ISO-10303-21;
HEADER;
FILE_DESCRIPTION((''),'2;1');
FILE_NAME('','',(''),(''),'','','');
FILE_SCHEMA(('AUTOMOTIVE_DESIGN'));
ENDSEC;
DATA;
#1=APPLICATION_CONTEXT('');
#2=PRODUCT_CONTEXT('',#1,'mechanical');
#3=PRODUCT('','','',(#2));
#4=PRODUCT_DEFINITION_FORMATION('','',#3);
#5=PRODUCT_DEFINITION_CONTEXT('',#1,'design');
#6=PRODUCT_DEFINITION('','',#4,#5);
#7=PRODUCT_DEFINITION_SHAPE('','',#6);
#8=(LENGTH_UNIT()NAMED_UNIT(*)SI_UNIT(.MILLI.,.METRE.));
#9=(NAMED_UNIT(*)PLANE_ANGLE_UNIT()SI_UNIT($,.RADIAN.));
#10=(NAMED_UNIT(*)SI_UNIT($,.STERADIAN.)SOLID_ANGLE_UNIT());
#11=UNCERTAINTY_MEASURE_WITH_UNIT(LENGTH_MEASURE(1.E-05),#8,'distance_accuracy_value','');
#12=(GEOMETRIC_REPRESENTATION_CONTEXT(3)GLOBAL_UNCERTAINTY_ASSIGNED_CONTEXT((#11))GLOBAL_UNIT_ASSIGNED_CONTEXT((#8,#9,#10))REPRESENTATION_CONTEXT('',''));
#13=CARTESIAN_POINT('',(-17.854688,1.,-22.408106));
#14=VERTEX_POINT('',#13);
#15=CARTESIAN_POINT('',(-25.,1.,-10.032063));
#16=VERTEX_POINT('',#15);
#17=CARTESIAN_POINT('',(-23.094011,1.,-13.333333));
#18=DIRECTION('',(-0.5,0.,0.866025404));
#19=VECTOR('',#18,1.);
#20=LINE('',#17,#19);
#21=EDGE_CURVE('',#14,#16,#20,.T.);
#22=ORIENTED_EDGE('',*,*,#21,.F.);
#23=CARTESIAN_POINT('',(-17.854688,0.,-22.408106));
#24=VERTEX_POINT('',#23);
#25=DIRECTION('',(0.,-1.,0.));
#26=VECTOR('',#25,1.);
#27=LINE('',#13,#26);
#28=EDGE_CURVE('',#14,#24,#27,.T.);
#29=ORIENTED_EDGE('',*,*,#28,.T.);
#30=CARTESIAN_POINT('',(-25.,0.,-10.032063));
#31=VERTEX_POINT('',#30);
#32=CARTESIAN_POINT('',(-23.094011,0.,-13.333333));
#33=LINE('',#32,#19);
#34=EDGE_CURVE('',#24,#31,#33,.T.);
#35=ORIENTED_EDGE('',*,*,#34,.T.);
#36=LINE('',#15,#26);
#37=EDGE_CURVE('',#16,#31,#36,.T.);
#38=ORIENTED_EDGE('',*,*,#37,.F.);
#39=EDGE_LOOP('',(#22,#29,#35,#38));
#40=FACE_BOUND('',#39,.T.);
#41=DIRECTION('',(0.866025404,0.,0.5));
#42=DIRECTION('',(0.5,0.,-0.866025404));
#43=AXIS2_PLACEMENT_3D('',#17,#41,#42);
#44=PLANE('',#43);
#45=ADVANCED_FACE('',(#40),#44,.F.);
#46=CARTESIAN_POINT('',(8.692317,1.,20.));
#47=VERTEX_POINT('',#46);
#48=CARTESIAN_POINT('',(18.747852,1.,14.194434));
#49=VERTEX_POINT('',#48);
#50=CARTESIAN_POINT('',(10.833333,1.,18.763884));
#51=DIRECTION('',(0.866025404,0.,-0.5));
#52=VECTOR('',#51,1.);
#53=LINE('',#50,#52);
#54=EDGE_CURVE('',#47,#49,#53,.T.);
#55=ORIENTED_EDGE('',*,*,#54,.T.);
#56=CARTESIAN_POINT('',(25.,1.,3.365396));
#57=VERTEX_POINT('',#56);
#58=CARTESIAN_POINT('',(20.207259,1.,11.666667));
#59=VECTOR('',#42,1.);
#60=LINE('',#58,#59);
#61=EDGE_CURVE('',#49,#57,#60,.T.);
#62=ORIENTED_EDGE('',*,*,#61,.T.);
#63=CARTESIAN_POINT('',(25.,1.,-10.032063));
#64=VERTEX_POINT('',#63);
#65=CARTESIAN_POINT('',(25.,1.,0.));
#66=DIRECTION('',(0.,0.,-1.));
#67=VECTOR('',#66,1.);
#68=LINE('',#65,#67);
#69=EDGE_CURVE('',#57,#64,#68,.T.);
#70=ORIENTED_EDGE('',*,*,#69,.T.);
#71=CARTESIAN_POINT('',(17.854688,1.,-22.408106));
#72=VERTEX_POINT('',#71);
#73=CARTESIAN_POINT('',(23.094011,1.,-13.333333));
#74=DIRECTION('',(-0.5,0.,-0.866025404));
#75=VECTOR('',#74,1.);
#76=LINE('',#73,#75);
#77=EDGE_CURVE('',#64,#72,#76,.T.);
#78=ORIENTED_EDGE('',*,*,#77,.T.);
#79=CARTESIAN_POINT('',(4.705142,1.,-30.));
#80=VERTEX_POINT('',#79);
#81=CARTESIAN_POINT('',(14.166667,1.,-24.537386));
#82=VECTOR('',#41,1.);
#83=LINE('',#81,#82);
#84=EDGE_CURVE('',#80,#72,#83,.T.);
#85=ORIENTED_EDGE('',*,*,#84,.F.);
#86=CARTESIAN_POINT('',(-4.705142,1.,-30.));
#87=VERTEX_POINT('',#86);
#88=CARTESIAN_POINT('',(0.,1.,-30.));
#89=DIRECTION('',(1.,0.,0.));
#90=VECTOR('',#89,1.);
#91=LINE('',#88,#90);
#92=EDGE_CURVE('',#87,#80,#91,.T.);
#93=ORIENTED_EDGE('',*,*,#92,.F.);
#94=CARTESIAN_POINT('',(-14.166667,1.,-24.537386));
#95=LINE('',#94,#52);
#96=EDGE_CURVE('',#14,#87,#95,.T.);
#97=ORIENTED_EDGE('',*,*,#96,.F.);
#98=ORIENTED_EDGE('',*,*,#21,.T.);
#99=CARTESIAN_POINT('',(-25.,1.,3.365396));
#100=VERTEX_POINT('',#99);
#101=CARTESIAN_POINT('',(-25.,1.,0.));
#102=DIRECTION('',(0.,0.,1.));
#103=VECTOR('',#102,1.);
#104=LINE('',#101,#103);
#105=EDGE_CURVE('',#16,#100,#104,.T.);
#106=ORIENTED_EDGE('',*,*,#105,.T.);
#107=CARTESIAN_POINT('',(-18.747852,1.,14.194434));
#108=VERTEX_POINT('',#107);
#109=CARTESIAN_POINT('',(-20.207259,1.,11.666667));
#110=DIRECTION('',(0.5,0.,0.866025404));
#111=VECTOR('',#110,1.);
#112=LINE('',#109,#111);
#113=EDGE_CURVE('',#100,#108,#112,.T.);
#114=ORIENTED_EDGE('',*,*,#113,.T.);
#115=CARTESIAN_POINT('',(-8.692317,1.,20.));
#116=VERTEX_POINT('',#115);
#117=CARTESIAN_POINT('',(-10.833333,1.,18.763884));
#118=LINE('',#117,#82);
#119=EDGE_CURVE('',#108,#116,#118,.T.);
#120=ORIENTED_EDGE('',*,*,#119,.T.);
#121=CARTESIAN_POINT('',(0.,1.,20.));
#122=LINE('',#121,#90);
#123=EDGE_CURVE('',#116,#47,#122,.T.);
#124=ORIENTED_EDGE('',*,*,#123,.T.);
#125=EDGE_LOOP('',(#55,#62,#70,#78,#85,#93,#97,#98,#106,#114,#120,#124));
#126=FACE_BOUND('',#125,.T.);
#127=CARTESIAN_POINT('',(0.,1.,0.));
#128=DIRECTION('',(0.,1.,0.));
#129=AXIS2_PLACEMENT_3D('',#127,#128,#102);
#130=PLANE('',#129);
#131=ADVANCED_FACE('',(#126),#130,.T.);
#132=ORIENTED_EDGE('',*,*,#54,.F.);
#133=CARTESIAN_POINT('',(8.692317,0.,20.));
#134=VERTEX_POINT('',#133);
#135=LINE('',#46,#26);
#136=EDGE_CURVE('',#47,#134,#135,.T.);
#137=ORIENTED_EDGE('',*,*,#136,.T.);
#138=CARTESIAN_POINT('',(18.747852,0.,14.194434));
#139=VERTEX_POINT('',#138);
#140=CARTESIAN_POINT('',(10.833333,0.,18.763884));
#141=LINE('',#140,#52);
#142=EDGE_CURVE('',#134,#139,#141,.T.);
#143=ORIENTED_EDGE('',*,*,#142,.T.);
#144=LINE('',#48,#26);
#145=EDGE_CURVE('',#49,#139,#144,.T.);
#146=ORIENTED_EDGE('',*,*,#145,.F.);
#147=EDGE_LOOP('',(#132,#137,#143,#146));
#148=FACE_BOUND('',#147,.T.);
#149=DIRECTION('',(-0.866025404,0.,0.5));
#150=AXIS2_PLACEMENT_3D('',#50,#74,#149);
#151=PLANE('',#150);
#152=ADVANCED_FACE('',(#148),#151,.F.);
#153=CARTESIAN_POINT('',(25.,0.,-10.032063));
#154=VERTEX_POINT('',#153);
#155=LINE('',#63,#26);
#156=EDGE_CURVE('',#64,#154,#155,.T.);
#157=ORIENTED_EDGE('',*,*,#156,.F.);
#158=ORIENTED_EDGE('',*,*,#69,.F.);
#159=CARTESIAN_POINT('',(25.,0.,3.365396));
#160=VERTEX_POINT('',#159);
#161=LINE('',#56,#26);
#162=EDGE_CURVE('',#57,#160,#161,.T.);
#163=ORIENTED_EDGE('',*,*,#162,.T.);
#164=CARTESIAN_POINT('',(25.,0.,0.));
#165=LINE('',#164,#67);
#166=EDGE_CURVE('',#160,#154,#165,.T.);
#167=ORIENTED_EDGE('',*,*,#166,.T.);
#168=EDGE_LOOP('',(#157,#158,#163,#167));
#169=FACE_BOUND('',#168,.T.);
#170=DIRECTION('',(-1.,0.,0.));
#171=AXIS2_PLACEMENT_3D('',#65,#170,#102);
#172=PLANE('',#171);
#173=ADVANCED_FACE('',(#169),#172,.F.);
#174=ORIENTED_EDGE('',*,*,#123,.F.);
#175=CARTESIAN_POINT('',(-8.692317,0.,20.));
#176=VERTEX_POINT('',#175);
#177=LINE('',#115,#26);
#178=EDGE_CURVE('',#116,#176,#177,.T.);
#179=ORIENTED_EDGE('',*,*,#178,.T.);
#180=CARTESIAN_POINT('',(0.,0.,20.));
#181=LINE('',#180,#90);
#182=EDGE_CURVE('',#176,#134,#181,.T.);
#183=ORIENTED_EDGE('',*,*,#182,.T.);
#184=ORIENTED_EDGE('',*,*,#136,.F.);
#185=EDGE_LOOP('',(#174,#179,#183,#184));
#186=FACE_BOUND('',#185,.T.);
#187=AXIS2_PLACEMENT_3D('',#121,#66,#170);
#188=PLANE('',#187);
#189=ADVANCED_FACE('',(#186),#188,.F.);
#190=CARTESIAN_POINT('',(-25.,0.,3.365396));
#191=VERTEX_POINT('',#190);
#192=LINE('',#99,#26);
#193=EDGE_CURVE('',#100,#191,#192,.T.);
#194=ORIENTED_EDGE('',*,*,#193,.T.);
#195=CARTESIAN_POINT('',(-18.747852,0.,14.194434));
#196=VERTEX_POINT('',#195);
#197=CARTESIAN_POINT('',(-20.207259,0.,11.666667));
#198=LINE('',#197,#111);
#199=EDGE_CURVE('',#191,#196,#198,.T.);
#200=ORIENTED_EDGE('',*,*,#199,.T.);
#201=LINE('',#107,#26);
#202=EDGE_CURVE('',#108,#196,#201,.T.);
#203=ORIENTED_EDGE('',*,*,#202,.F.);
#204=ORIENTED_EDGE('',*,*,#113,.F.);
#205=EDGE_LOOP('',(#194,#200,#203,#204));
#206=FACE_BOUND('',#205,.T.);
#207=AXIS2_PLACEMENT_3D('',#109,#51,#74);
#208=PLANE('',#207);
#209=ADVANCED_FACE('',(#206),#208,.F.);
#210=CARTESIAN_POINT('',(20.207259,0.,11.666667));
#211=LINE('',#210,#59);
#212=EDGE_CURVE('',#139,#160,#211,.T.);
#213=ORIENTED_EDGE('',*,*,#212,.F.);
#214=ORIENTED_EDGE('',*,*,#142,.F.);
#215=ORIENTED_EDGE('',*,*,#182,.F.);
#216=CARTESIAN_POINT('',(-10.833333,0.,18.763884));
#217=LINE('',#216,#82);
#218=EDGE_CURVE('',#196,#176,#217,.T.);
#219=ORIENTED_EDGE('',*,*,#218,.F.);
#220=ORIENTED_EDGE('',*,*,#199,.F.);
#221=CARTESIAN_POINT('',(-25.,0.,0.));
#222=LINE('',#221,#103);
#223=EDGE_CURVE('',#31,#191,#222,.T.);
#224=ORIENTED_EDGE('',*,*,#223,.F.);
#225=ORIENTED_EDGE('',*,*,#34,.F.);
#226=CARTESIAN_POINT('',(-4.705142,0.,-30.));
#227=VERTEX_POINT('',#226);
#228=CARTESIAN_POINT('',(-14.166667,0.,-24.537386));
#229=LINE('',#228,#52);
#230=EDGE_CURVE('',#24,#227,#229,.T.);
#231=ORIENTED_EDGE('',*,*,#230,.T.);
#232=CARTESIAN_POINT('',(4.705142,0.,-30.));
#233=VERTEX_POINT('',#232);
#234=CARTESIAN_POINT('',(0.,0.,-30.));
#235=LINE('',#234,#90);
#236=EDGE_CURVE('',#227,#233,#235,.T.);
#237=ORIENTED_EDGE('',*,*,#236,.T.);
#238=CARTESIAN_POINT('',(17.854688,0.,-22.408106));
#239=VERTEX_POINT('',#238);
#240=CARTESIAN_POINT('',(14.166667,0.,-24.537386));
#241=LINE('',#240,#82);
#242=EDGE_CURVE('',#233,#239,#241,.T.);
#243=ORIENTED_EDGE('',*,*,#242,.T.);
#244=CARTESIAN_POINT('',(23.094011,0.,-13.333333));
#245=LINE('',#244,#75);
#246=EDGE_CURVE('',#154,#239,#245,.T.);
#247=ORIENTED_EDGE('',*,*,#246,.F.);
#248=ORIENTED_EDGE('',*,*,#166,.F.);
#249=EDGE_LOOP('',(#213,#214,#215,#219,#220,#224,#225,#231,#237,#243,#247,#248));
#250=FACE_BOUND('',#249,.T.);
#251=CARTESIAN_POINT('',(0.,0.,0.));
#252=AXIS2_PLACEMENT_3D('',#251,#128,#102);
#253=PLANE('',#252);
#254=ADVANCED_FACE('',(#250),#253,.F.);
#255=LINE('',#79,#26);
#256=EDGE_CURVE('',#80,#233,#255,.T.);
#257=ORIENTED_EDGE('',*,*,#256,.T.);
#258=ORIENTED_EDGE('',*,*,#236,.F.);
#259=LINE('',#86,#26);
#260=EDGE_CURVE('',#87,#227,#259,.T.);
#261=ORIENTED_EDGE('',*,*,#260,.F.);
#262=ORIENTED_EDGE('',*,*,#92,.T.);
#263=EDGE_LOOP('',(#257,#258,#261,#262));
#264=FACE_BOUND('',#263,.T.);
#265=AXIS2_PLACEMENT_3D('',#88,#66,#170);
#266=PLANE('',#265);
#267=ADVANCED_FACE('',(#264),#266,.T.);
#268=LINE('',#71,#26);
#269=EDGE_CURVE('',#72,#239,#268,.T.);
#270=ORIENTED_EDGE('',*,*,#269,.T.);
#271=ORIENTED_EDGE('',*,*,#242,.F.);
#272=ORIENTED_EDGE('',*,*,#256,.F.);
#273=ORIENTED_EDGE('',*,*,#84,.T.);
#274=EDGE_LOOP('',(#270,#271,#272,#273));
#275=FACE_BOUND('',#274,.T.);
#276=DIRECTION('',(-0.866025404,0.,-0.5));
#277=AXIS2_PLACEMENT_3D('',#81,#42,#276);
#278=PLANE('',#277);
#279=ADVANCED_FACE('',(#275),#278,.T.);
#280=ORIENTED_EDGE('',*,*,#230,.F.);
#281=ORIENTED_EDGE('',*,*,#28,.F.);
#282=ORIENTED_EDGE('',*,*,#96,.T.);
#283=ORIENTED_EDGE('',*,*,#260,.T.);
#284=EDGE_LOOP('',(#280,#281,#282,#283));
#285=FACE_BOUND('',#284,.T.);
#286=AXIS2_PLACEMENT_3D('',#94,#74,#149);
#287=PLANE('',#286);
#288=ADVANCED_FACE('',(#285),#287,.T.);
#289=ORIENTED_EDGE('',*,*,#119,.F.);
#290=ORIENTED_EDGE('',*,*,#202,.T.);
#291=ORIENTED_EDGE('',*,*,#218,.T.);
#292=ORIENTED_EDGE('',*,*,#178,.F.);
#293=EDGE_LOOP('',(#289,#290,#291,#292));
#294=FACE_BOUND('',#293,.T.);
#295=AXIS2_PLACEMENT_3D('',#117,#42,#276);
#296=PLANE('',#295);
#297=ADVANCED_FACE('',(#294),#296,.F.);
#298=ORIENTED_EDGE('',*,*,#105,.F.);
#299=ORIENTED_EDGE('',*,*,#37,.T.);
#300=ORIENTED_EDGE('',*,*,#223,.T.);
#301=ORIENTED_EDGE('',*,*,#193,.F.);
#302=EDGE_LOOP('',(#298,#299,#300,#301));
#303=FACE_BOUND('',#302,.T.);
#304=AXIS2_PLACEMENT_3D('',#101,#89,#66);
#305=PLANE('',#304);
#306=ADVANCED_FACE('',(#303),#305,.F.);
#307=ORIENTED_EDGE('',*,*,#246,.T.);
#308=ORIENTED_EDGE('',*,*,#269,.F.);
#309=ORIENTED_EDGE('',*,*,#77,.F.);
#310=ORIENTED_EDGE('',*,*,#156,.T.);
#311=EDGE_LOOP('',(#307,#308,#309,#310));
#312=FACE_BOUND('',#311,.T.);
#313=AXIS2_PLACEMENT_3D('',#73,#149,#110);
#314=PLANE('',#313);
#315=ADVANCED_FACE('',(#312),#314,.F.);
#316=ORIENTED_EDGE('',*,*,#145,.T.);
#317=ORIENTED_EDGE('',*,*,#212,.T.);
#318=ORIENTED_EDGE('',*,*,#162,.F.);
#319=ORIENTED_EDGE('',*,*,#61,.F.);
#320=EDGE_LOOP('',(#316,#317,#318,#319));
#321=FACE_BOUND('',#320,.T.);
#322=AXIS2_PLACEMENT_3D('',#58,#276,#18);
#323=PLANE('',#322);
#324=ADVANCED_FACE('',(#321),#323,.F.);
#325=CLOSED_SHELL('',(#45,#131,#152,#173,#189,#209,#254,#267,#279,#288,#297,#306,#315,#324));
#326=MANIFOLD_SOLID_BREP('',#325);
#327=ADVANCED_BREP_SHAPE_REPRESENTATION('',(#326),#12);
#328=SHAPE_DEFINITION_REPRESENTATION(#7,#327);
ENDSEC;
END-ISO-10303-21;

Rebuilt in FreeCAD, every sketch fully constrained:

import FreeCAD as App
import Part
import Sketcher
from FreeCAD import Vector
Q = App.Units.Quantity


def add_polygon(sketch, points):
    """Adds a closed chain of lines whose ends are joined by coincident constraints."""
    first, n = sketch.GeometryCount, len(points)
    for a, b in zip(points, points[1:] + points[:1]):
        sketch.addGeometry(Part.LineSegment(App.Vector(*a, 0), App.Vector(*b, 0)), False)
    for i in range(n):
        sketch.addConstraint(Sketcher.Constraint("Coincident", first + i, 2, first + (i + 1) % n, 1))

doc = App.newDocument("Part")
body = doc.addObject("PartDesign::Body", "Body")

# Sketch on XZ plane
sketch1 = body.newObject("Sketcher::SketchObject", "Sketch")
sketch1.AttachmentSupport = (doc.getObject("XZ_Plane"), [""])
sketch1.MapMode = "FlatFace"
add_polygon(sketch1, [(5, -30), (-5, -30), (-18, -22), (-25, -10), (-25, 3), (-19, 14), (-9, 20), (9, 20), (19, 14), (25, 3), (25, -10), (18, -22)])  # lines 0-11
sketch1.addConstraint([
    Sketcher.Constraint("Horizontal", 0),
    Sketcher.Constraint("Vertical", 3),
    Sketcher.Constraint("Horizontal", 6),
    Sketcher.Constraint("Vertical", 9),
    Sketcher.Constraint("Symmetric", 4, 2, 7, 2, -2),
    Sketcher.Constraint("Symmetric", 3, 2, 8, 2, -2),
    Sketcher.Constraint("Symmetric", 1, 2, 10, 2, -2),
    Sketcher.Constraint("Perpendicular", 1, 4),
    Sketcher.Constraint("Perpendicular", 2, 5),
    Sketcher.Constraint("Perpendicular", 4, 7),
    Sketcher.Constraint("Perpendicular", 5, 8),
    Sketcher.Constraint("Perpendicular", 7, 10),
    Sketcher.Constraint("Perpendicular", 8, 11),
    Sketcher.Constraint("Angle", 1, Q("150 deg")),
    Sketcher.Constraint("DistanceY", 0, 2, -1, 1, Q("30 mm")),
    Sketcher.Constraint("DistanceX", 2, 2, -1, 1, Q("25 mm")),
    Sketcher.Constraint("DistanceY", -1, 1, 5, 2, Q("20 mm")),
    Sketcher.Constraint("DistanceY", 3, 1, 3, 2, Q("13.39746 mm")),
    Sketcher.Constraint("Distance", 5, Q("11.611132 mm")),
    Sketcher.Constraint("DistanceX", 0, 2, 0, 1, Q("9.410285 mm")),
    Sketcher.Constraint("DistanceX", 6, 1, 6, 2, Q("17.384634 mm")),
])
pad1 = body.newObject("PartDesign::Pad", "Pad")
pad1.Profile = sketch1
pad1.Length = 1
pad1.Reversed = True

doc.recompute()
